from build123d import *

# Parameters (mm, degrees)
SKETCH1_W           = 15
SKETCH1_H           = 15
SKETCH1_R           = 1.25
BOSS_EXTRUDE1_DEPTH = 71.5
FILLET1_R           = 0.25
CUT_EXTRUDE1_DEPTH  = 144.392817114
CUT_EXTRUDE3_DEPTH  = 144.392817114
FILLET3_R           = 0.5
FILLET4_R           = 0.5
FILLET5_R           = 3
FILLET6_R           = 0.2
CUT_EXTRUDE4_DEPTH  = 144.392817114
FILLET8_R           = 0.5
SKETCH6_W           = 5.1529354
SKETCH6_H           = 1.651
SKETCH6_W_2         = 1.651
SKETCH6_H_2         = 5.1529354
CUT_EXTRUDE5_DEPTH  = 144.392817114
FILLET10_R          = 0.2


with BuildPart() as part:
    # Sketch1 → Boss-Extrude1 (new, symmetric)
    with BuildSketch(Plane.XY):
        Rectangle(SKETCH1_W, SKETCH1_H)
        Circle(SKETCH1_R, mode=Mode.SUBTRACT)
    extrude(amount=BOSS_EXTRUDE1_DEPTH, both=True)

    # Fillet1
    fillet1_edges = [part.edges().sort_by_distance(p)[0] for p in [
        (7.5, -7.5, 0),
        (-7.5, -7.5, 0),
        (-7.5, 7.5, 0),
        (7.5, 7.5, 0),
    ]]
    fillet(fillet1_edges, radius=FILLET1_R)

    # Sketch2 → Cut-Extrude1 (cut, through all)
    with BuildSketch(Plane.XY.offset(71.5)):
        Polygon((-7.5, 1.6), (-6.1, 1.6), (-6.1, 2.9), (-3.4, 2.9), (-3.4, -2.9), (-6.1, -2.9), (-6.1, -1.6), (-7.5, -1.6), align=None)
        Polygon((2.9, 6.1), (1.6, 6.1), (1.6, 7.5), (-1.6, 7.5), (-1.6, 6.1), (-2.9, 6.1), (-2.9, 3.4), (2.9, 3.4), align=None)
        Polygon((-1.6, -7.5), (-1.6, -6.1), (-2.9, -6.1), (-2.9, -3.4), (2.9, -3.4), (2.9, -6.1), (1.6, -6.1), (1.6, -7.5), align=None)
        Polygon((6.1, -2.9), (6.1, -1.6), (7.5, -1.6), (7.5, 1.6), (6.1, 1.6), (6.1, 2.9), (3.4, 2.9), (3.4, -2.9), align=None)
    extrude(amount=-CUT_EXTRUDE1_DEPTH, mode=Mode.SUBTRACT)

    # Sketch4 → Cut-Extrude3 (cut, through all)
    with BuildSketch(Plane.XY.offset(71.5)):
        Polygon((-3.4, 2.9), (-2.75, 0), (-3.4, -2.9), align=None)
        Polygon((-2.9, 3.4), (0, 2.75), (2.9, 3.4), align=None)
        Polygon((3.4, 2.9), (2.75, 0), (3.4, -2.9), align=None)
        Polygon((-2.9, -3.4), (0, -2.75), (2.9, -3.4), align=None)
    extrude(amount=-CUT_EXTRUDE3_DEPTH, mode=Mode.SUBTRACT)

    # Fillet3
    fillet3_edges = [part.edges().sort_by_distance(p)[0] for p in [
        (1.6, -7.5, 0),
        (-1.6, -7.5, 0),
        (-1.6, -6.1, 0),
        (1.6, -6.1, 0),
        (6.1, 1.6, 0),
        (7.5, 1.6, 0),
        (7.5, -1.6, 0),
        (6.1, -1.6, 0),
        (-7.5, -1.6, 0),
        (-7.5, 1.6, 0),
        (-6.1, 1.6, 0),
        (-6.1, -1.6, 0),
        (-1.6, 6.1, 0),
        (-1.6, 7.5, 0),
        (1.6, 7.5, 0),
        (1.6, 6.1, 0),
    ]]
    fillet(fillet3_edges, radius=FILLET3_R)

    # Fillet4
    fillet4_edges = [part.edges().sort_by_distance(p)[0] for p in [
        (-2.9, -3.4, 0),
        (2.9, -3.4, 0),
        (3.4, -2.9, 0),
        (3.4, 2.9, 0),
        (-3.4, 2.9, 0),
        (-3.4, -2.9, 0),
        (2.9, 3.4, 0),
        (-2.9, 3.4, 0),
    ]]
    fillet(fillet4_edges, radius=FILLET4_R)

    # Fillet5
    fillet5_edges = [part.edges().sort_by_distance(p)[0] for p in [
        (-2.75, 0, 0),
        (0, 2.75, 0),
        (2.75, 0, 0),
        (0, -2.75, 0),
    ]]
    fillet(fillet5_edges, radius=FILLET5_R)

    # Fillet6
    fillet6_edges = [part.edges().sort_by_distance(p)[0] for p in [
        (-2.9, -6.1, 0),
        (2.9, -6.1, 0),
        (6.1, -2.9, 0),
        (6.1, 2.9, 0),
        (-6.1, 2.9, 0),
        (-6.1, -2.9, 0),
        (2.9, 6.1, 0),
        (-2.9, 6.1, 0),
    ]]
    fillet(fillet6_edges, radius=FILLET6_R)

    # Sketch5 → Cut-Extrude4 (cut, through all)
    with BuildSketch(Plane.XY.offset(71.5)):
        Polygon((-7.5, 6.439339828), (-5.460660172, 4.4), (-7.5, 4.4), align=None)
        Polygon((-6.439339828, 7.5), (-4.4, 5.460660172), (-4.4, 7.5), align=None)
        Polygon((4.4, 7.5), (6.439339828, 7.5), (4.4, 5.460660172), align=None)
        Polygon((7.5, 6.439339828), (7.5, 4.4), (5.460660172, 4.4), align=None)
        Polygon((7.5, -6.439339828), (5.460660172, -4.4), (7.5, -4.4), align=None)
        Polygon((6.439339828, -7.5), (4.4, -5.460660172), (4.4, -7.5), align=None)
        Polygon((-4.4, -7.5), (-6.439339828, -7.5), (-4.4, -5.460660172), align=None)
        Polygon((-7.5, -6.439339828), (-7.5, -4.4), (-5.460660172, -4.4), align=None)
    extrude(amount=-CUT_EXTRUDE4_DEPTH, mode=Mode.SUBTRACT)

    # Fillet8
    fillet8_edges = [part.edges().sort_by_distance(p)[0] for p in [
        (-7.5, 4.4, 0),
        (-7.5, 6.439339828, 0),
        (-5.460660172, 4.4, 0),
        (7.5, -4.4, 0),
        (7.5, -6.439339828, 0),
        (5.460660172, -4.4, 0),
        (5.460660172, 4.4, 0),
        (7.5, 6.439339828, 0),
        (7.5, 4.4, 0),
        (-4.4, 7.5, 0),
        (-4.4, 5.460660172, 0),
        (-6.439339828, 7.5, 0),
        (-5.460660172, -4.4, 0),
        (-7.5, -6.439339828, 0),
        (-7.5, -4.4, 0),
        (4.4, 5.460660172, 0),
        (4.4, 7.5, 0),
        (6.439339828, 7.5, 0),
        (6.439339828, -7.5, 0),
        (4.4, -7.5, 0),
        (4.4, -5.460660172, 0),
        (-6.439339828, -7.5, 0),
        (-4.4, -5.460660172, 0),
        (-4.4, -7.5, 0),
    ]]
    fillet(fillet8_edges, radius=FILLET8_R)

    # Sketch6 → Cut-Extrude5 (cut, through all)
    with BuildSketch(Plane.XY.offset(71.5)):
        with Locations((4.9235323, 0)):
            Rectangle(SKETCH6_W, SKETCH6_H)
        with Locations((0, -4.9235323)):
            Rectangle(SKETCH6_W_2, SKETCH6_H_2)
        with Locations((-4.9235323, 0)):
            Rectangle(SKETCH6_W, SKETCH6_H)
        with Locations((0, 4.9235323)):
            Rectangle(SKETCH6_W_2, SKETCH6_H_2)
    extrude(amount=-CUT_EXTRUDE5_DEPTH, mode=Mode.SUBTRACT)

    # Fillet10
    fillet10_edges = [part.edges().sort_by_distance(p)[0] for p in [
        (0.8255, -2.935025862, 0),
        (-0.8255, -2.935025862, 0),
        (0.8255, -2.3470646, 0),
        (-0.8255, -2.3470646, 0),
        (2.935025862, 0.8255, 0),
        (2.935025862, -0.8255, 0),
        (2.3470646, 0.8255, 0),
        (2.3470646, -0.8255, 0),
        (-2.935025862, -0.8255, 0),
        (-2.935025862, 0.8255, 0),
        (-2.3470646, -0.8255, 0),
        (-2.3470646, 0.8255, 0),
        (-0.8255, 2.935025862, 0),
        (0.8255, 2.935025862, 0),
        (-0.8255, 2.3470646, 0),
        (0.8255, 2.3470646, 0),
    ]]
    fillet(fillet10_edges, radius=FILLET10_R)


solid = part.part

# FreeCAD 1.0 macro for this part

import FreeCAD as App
import Part
import Sketcher
from FreeCAD import Vector


def edges_at(feature, points):
    """Names of the edges that pass closest to the given points."""
    edges = feature.Shape.Edges
    near = lambda p: min(range(len(edges)), key=lambda i: edges[i].distToShape(Part.Vertex(*p))[0])
    return sorted({f"Edge{near(p) + 1}" for p in points})

doc = App.newDocument("Part")
body = doc.addObject("PartDesign::Body", "Body")

# Sketch on XY plane
sketch1 = doc.addObject("Sketcher::SketchObject", "Sketch")
body.addObject(sketch1)
sketch1.AttachmentSupport = (doc.XY_Plane, [""])
sketch1.MapMode = "FlatFace"
sketch1.addGeometry(Part.LineSegment(Vector(-7.5, 7.5, 0), Vector(-7.5, -7.5, 0)), False)
sketch1.addGeometry(Part.LineSegment(Vector(-7.5, -7.5, 0), Vector(7.5, -7.5, 0)), False)
sketch1.addGeometry(Part.LineSegment(Vector(7.5, -7.5, 0), Vector(7.5, 7.5, 0)), False)
sketch1.addGeometry(Part.LineSegment(Vector(7.5, 7.5, 0), Vector(-7.5, 7.5, 0)), False)
sketch1.addGeometry(Part.Circle(Vector(0, 0, 0), Vector(0, 0, 1), 1.2), False)
sketch1.addConstraint(Sketcher.Constraint("Coincident", 0, 2, 1, 1))
sketch1.addConstraint(Sketcher.Constraint("Coincident", 1, 2, 2, 1))
sketch1.addConstraint(Sketcher.Constraint("Coincident", 2, 2, 3, 1))
sketch1.addConstraint(Sketcher.Constraint("Coincident", 3, 2, 0, 1))
sketch1.addConstraint(Sketcher.Constraint("Vertical", 0))
sketch1.addConstraint(Sketcher.Constraint("Horizontal", 1))
sketch1.addConstraint(Sketcher.Constraint("Vertical", 2))
sketch1.addConstraint(Sketcher.Constraint("Horizontal", 3))
sketch1.addConstraint(Sketcher.Constraint("Coincident", 4, 3, -1, 1))
sketch1.addConstraint(Sketcher.Constraint("Symmetric", 0, 2, 2, 2, -1, 1))
sketch1.addConstraint(Sketcher.Constraint("Equal", 3, 0))
sketch1.addConstraint(Sketcher.Constraint("Diameter", 4, 2.5))
sketch1.addConstraint(Sketcher.Constraint("DistanceX", 1, 1, 1, 2, 15.0))
pad1 = doc.addObject("PartDesign::Pad", "Pad")
body.addObject(pad1)
pad1.Profile = sketch1
pad1.Length = 143
pad1.Midplane = True
doc.recompute()

fillet = doc.addObject("PartDesign::Fillet", "Fillet")
body.addObject(fillet)
fillet.Base = (pad1, edges_at(pad1, [
    (7.5, -7.5, 0),
    (-7.5, -7.5, 0),
    (-7.5, 7.5, 0),
    (7.5, 7.5, 0),
]))
fillet.Radius = 0.25

# Sketch on XY plane
sketch2 = doc.addObject("Sketcher::SketchObject", "Sketch001")
body.addObject(sketch2)
sketch2.AttachmentSupport = (doc.XY_Plane, [""])
sketch2.MapMode = "FlatFace"
sketch2.AttachmentOffset = App.Placement(Vector(0, 0, 71.5), App.Rotation())
sketch2.addGeometry(Part.LineSegment(Vector(-6.1, 1.6, 0), Vector(-7.5, 1.6, 0)), False)
sketch2.addGeometry(Part.LineSegment(Vector(-7.5, 1.6, 0), Vector(-7.5, -1.6, 0)), False)
sketch2.addGeometry(Part.LineSegment(Vector(-7.5, -1.6, 0), Vector(-6.1, -1.6, 0)), False)
sketch2.addGeometry(Part.LineSegment(Vector(-6.1, -1.6, 0), Vector(-6.1, -2.9, 0)), False)
sketch2.addGeometry(Part.LineSegment(Vector(-6.1, -2.9, 0), Vector(-3.4, -2.9, 0)), False)
sketch2.addGeometry(Part.LineSegment(Vector(-3.4, -2.9, 0), Vector(-3.4, 2.9, 0)), False)
sketch2.addGeometry(Part.LineSegment(Vector(-3.4, 2.9, 0), Vector(-6.1, 2.9, 0)), False)
sketch2.addGeometry(Part.LineSegment(Vector(-6.1, 2.9, 0), Vector(-6.1, 1.6, 0)), False)
sketch2.addGeometry(Part.LineSegment(Vector(2.9, 6.1, 0), Vector(1.6, 6.1, 0)), False)
sketch2.addGeometry(Part.LineSegment(Vector(1.6, 6.1, 0), Vector(1.6, 7.5, 0)), False)
sketch2.addGeometry(Part.LineSegment(Vector(1.6, 7.5, 0), Vector(-1.6, 7.5, 0)), False)
sketch2.addGeometry(Part.LineSegment(Vector(-1.6, 7.5, 0), Vector(-1.6, 6.1, 0)), False)
sketch2.addGeometry(Part.LineSegment(Vector(-1.6, 6.1, 0), Vector(-2.9, 6.1, 0)), False)
sketch2.addGeometry(Part.LineSegment(Vector(-2.9, 6.1, 0), Vector(-2.9, 3.4, 0)), False)
sketch2.addGeometry(Part.LineSegment(Vector(-2.9, 3.4, 0), Vector(2.9, 3.4, 0)), False)
sketch2.addGeometry(Part.LineSegment(Vector(2.9, 3.4, 0), Vector(2.9, 6.1, 0)), False)
sketch2.addGeometry(Part.LineSegment(Vector(-1.6, -6.1, 0), Vector(-1.6, -7.5, 0)), False)
sketch2.addGeometry(Part.LineSegment(Vector(-1.6, -7.5, 0), Vector(1.6, -7.5, 0)), False)
sketch2.addGeometry(Part.LineSegment(Vector(1.6, -7.5, 0), Vector(1.6, -6.1, 0)), False)
sketch2.addGeometry(Part.LineSegment(Vector(1.6, -6.1, 0), Vector(2.9, -6.1, 0)), False)
sketch2.addGeometry(Part.LineSegment(Vector(2.9, -6.1, 0), Vector(2.9, -3.4, 0)), False)
sketch2.addGeometry(Part.LineSegment(Vector(2.9, -3.4, 0), Vector(-2.9, -3.4, 0)), False)
sketch2.addGeometry(Part.LineSegment(Vector(-2.9, -3.4, 0), Vector(-2.9, -6.1, 0)), False)
sketch2.addGeometry(Part.LineSegment(Vector(-2.9, -6.1, 0), Vector(-1.6, -6.1, 0)), False)
sketch2.addGeometry(Part.LineSegment(Vector(6.1, -2.9, 0), Vector(6.1, -1.6, 0)), False)
sketch2.addGeometry(Part.LineSegment(Vector(6.1, -1.6, 0), Vector(7.5, -1.6, 0)), False)
sketch2.addGeometry(Part.LineSegment(Vector(7.5, -1.6, 0), Vector(7.5, 1.6, 0)), False)
sketch2.addGeometry(Part.LineSegment(Vector(7.5, 1.6, 0), Vector(6.1, 1.6, 0)), False)
sketch2.addGeometry(Part.LineSegment(Vector(6.1, 1.6, 0), Vector(6.1, 2.9, 0)), False)
sketch2.addGeometry(Part.LineSegment(Vector(6.1, 2.9, 0), Vector(3.4, 2.9, 0)), False)
sketch2.addGeometry(Part.LineSegment(Vector(3.4, 2.9, 0), Vector(3.4, -2.9, 0)), False)
sketch2.addGeometry(Part.LineSegment(Vector(3.4, -2.9, 0), Vector(6.1, -2.9, 0)), False)
sketch2.addConstraint(Sketcher.Constraint("Coincident", 0, 2, 1, 1))
sketch2.addConstraint(Sketcher.Constraint("Coincident", 1, 2, 2, 1))
sketch2.addConstraint(Sketcher.Constraint("Coincident", 2, 2, 3, 1))
sketch2.addConstraint(Sketcher.Constraint("Coincident", 3, 2, 4, 1))
sketch2.addConstraint(Sketcher.Constraint("Coincident", 4, 2, 5, 1))
sketch2.addConstraint(Sketcher.Constraint("Coincident", 5, 2, 6, 1))
sketch2.addConstraint(Sketcher.Constraint("Coincident", 6, 2, 7, 1))
sketch2.addConstraint(Sketcher.Constraint("Coincident", 7, 2, 0, 1))
sketch2.addConstraint(Sketcher.Constraint("Coincident", 8, 2, 9, 1))
sketch2.addConstraint(Sketcher.Constraint("Coincident", 9, 2, 10, 1))
sketch2.addConstraint(Sketcher.Constraint("Coincident", 10, 2, 11, 1))
sketch2.addConstraint(Sketcher.Constraint("Coincident", 11, 2, 12, 1))
sketch2.addConstraint(Sketcher.Constraint("Coincident", 12, 2, 13, 1))
sketch2.addConstraint(Sketcher.Constraint("Coincident", 13, 2, 14, 1))
sketch2.addConstraint(Sketcher.Constraint("Coincident", 14, 2, 15, 1))
sketch2.addConstraint(Sketcher.Constraint("Coincident", 15, 2, 8, 1))
sketch2.addConstraint(Sketcher.Constraint("Coincident", 16, 2, 17, 1))
sketch2.addConstraint(Sketcher.Constraint("Coincident", 17, 2, 18, 1))
sketch2.addConstraint(Sketcher.Constraint("Coincident", 18, 2, 19, 1))
sketch2.addConstraint(Sketcher.Constraint("Coincident", 19, 2, 20, 1))
sketch2.addConstraint(Sketcher.Constraint("Coincident", 20, 2, 21, 1))
sketch2.addConstraint(Sketcher.Constraint("Coincident", 21, 2, 22, 1))
sketch2.addConstraint(Sketcher.Constraint("Coincident", 22, 2, 23, 1))
sketch2.addConstraint(Sketcher.Constraint("Coincident", 23, 2, 16, 1))
sketch2.addConstraint(Sketcher.Constraint("Coincident", 24, 2, 25, 1))
sketch2.addConstraint(Sketcher.Constraint("Coincident", 25, 2, 26, 1))
sketch2.addConstraint(Sketcher.Constraint("Coincident", 26, 2, 27, 1))
sketch2.addConstraint(Sketcher.Constraint("Coincident", 27, 2, 28, 1))
sketch2.addConstraint(Sketcher.Constraint("Coincident", 28, 2, 29, 1))
sketch2.addConstraint(Sketcher.Constraint("Coincident", 29, 2, 30, 1))
sketch2.addConstraint(Sketcher.Constraint("Coincident", 30, 2, 31, 1))
sketch2.addConstraint(Sketcher.Constraint("Coincident", 31, 2, 24, 1))
sketch2.addConstraint(Sketcher.Constraint("Horizontal", 0))
sketch2.addConstraint(Sketcher.Constraint("Vertical", 1))
sketch2.addConstraint(Sketcher.Constraint("Horizontal", 2))
sketch2.addConstraint(Sketcher.Constraint("Vertical", 3))
sketch2.addConstraint(Sketcher.Constraint("Horizontal", 4))
sketch2.addConstraint(Sketcher.Constraint("Vertical", 5))
sketch2.addConstraint(Sketcher.Constraint("Horizontal", 6))
sketch2.addConstraint(Sketcher.Constraint("Vertical", 7))
sketch2.addConstraint(Sketcher.Constraint("Horizontal", 8))
sketch2.addConstraint(Sketcher.Constraint("Vertical", 9))
sketch2.addConstraint(Sketcher.Constraint("Horizontal", 10))
sketch2.addConstraint(Sketcher.Constraint("Vertical", 11))
sketch2.addConstraint(Sketcher.Constraint("Horizontal", 12))
sketch2.addConstraint(Sketcher.Constraint("Vertical", 13))
sketch2.addConstraint(Sketcher.Constraint("Horizontal", 14))
sketch2.addConstraint(Sketcher.Constraint("Vertical", 15))
sketch2.addConstraint(Sketcher.Constraint("Vertical", 16))
sketch2.addConstraint(Sketcher.Constraint("Horizontal", 17))
sketch2.addConstraint(Sketcher.Constraint("Vertical", 18))
sketch2.addConstraint(Sketcher.Constraint("Horizontal", 19))
sketch2.addConstraint(Sketcher.Constraint("Vertical", 20))
sketch2.addConstraint(Sketcher.Constraint("Horizontal", 21))
sketch2.addConstraint(Sketcher.Constraint("Vertical", 22))
sketch2.addConstraint(Sketcher.Constraint("Horizontal", 23))
sketch2.addConstraint(Sketcher.Constraint("Vertical", 24))
sketch2.addConstraint(Sketcher.Constraint("Horizontal", 25))
sketch2.addConstraint(Sketcher.Constraint("Vertical", 26))
sketch2.addConstraint(Sketcher.Constraint("Horizontal", 27))
sketch2.addConstraint(Sketcher.Constraint("Vertical", 28))
sketch2.addConstraint(Sketcher.Constraint("Horizontal", 29))
sketch2.addConstraint(Sketcher.Constraint("Vertical", 30))
sketch2.addConstraint(Sketcher.Constraint("Horizontal", 31))
sketch2.addConstraint(Sketcher.Constraint("Symmetric", 9, 2, 16, 2, -1, 1))
sketch2.addConstraint(Sketcher.Constraint("Symmetric", 11, 2, 18, 2, -1, 1))
sketch2.addConstraint(Sketcher.Constraint("Symmetric", 13, 2, 20, 2, -1, 1))
sketch2.addConstraint(Sketcher.Constraint("Symmetric", 15, 2, 22, 2, -1, 1))
sketch2.addConstraint(Sketcher.Constraint("Symmetric", 7, 2, 24, 2, -1, 1))
sketch2.addConstraint(Sketcher.Constraint("Symmetric", 1, 2, 26, 2, -1, 1))
sketch2.addConstraint(Sketcher.Constraint("Symmetric", 3, 2, 28, 2, -1, 1))
sketch2.addConstraint(Sketcher.Constraint("Symmetric", 5, 2, 30, 2, -1, 1))
sketch2.addConstraint(Sketcher.Constraint("Symmetric", 8, 2, 11, 2, -2))
sketch2.addConstraint(Sketcher.Constraint("Symmetric", 2, 2, 24, 2, -2))
sketch2.addConstraint(Sketcher.Constraint("Horizontal", 6, 2, 28, 2))
sketch2.addConstraint(Sketcher.Constraint("Vertical", 15, 2, 19, 2))
sketch2.addConstraint(Sketcher.Constraint("Equal", 17, 1))
sketch2.addConstraint(Sketcher.Constraint("Equal", 23, 3))
sketch2.addConstraint(Sketcher.Constraint("Equal", 27, 9))
sketch2.addConstraint(Sketcher.Constraint("Equal", 31, 13))
sketch2.addConstraint(Sketcher.Constraint("DistanceX", 0, 2, 0, 1, 1.4))
sketch2.addConstraint(Sketcher.Constraint("DistanceX", 4, 1, 4, 2, 2.7))
sketch2.addConstraint(Sketcher.Constraint("DistanceX", 8, 2, 8, 1, 1.3))
sketch2.addConstraint(Sketcher.Constraint("DistanceX", 10, 2, 10, 1, 3.2))
sketch2.addConstraint(Sketcher.Constraint("DistanceX", 5, 2, 8, 2, 5.0))
sketch2.addConstraint(Sketcher.Constraint("DistanceY", 4, 2, 8, 2, 9.0))
pocket1 = doc.addObject("PartDesign::Pocket", "Pocket")
body.addObject(pocket1)
pocket1.Profile = sketch2
pocket1.Type = "ThroughAll"

# Sketch on XY plane
sketch3 = doc.addObject("Sketcher::SketchObject", "Sketch002")
body.addObject(sketch3)
sketch3.AttachmentSupport = (doc.XY_Plane, [""])
sketch3.MapMode = "FlatFace"
sketch3.AttachmentOffset = App.Placement(Vector(0, 0, 71.5), App.Rotation())
sketch3.addGeometry(Part.LineSegment(Vector(-2.8, 0, 0), Vector(-3.4, 2.9, 0)), False)
sketch3.addGeometry(Part.LineSegment(Vector(-3.4, 2.9, 0), Vector(-3.4, -2.9, 0)), False)
sketch3.addGeometry(Part.LineSegment(Vector(-3.4, -2.9, 0), Vector(-2.8, 0, 0)), False)
sketch3.addGeometry(Part.LineSegment(Vector(-2.9, 3.4, 0), Vector(0, 2.8, 0)), False)
sketch3.addGeometry(Part.LineSegment(Vector(0, 2.8, 0), Vector(2.9, 3.4, 0)), False)
sketch3.addGeometry(Part.LineSegment(Vector(2.9, 3.4, 0), Vector(-2.9, 3.4, 0)), False)
sketch3.addGeometry(Part.LineSegment(Vector(3.4, 2.9, 0), Vector(2.8, 0, 0)), False)
sketch3.addGeometry(Part.LineSegment(Vector(2.8, 0, 0), Vector(3.4, -2.9, 0)), False)
sketch3.addGeometry(Part.LineSegment(Vector(3.4, -2.9, 0), Vector(3.4, 2.9, 0)), False)
sketch3.addGeometry(Part.LineSegment(Vector(0, -2.8, 0), Vector(-2.9, -3.4, 0)), False)
sketch3.addGeometry(Part.LineSegment(Vector(-2.9, -3.4, 0), Vector(2.9, -3.4, 0)), False)
sketch3.addGeometry(Part.LineSegment(Vector(2.9, -3.4, 0), Vector(0, -2.8, 0)), False)
sketch3.addConstraint(Sketcher.Constraint("Coincident", 0, 2, 1, 1))
sketch3.addConstraint(Sketcher.Constraint("Coincident", 1, 2, 2, 1))
sketch3.addConstraint(Sketcher.Constraint("Coincident", 2, 2, 0, 1))
sketch3.addConstraint(Sketcher.Constraint("Coincident", 3, 2, 4, 1))
sketch3.addConstraint(Sketcher.Constraint("Coincident", 4, 2, 5, 1))
sketch3.addConstraint(Sketcher.Constraint("Coincident", 5, 2, 3, 1))
sketch3.addConstraint(Sketcher.Constraint("Coincident", 6, 2, 7, 1))
sketch3.addConstraint(Sketcher.Constraint("Coincident", 7, 2, 8, 1))
sketch3.addConstraint(Sketcher.Constraint("Coincident", 8, 2, 6, 1))
sketch3.addConstraint(Sketcher.Constraint("Coincident", 9, 2, 10, 1))
sketch3.addConstraint(Sketcher.Constraint("Coincident", 10, 2, 11, 1))
sketch3.addConstraint(Sketcher.Constraint("Coincident", 11, 2, 9, 1))
sketch3.addConstraint(Sketcher.Constraint("Vertical", 1))
sketch3.addConstraint(Sketcher.Constraint("Horizontal", 5))
sketch3.addConstraint(Sketcher.Constraint("Vertical", 8))
sketch3.addConstraint(Sketcher.Constraint("Horizontal", 10))
sketch3.addConstraint(Sketcher.Constraint("Symmetric", 2, 2, 6, 2, -1, 1))
sketch3.addConstraint(Sketcher.Constraint("Symmetric", 0, 2, 7, 2, -1, 1))
sketch3.addConstraint(Sketcher.Constraint("Symmetric", 4, 2, 9, 2, -1, 1))
sketch3.addConstraint(Sketcher.Constraint("Symmetric", 3, 2, 11, 2, -1, 1))
sketch3.addConstraint(Sketcher.Constraint("PointOnObject", 2, 2, -1))
sketch3.addConstraint(Sketcher.Constraint("PointOnObject", 3, 2, -2))
sketch3.addConstraint(Sketcher.Constraint("Perpendicular", 2, 3))
sketch3.addConstraint(Sketcher.Constraint("Perpendicular", 0, 4))
sketch3.addConstraint(Sketcher.Constraint("Perpendicular", 3, 6))
sketch3.addConstraint(Sketcher.Constraint("Perpendicular", 6, 11))
sketch3.addConstraint(Sketcher.Constraint("Horizontal", 1, 2, 7, 2))
sketch3.addConstraint(Sketcher.Constraint("Equal", 10, 1))
sketch3.addConstraint(Sketcher.Constraint("DistanceX", 5, 2, 5, 1, 5.8))
sketch3.addConstraint(Sketcher.Constraint("DistanceX", 0, 2, -1, 1, 3.4))
sketch3.addConstraint(Sketcher.Constraint("DistanceY", -1, 1, 4, 2, 3.4))
sketch3.addConstraint(Sketcher.Constraint("DistanceX", 2, 2, 6, 2, 5.5))
pocket2 = doc.addObject("PartDesign::Pocket", "Pocket001")
body.addObject(pocket2)
pocket2.Profile = sketch3
pocket2.Type = "ThroughAll"
doc.recompute()

fillet2 = doc.addObject("PartDesign::Fillet", "Fillet001")
body.addObject(fillet2)
fillet2.Base = (pocket2, edges_at(pocket2, [
    (1.6, -7.5, 0),
    (-1.6, -7.5, 0),
    (-1.6, -6.1, 0),
    (1.6, -6.1, 0),
    (6.1, 1.6, 0),
    (7.5, 1.6, 0),
    (7.5, -1.6, 0),
    (6.1, -1.6, 0),
    (-7.5, -1.6, 0),
    (-7.5, 1.6, 0),
    (-6.1, 1.6, 0),
    (-6.1, -1.6, 0),
    (-1.6, 6.1, 0),
    (-1.6, 7.5, 0),
    (1.6, 7.5, 0),
    (1.6, 6.1, 0),
]))
fillet2.Radius = 0.5
doc.recompute()

fillet3 = doc.addObject("PartDesign::Fillet", "Fillet002")
body.addObject(fillet3)
fillet3.Base = (fillet2, edges_at(fillet2, [
    (-2.9, -3.4, 0),
    (2.9, -3.4, 0),
    (3.4, -2.9, 0),
    (3.4, 2.9, 0),
    (-3.4, 2.9, 0),
    (-3.4, -2.9, 0),
    (2.9, 3.4, 0),
    (-2.9, 3.4, 0),
]))
fillet3.Radius = 0.5
doc.recompute()

fillet4 = doc.addObject("PartDesign::Fillet", "Fillet003")
body.addObject(fillet4)
fillet4.Base = (fillet3, edges_at(fillet3, [
    (-2.75, 0, 0),
    (0, 2.75, 0),
    (2.75, 0, 0),
    (0, -2.75, 0),
]))
fillet4.Radius = 3
doc.recompute()

fillet5 = doc.addObject("PartDesign::Fillet", "Fillet004")
body.addObject(fillet5)
fillet5.Base = (fillet4, edges_at(fillet4, [
    (-2.9, -6.1, 0),
    (2.9, -6.1, 0),
    (6.1, -2.9, 0),
    (6.1, 2.9, 0),
    (-6.1, 2.9, 0),
    (-6.1, -2.9, 0),
    (2.9, 6.1, 0),
    (-2.9, 6.1, 0),
]))
fillet5.Radius = 0.2

# Sketch on XY plane
sketch4 = doc.addObject("Sketcher::SketchObject", "Sketch003")
body.addObject(sketch4)
sketch4.AttachmentSupport = (doc.XY_Plane, [""])
sketch4.MapMode = "FlatFace"
sketch4.AttachmentOffset = App.Placement(Vector(0, 0, 71.5), App.Rotation())
sketch4.addGeometry(Part.LineSegment(Vector(-5.5, 4.4, 0), Vector(-7.5, 6.4, 0)), False)
sketch4.addGeometry(Part.LineSegment(Vector(-7.5, 6.4, 0), Vector(-7.5, 4.4, 0)), False)
sketch4.addGeometry(Part.LineSegment(Vector(-7.5, 4.4, 0), Vector(-5.5, 4.4, 0)), False)
sketch4.addGeometry(Part.LineSegment(Vector(-6.4, 7.5, 0), Vector(-4.4, 5.5, 0)), False)
sketch4.addGeometry(Part.LineSegment(Vector(-4.4, 5.5, 0), Vector(-4.4, 7.5, 0)), False)
sketch4.addGeometry(Part.LineSegment(Vector(-4.4, 7.5, 0), Vector(-6.4, 7.5, 0)), False)
sketch4.addGeometry(Part.LineSegment(Vector(6.4, 7.5, 0), Vector(4.4, 7.5, 0)), False)
sketch4.addGeometry(Part.LineSegment(Vector(4.4, 7.5, 0), Vector(4.4, 5.5, 0)), False)
sketch4.addGeometry(Part.LineSegment(Vector(4.4, 5.5, 0), Vector(6.4, 7.5, 0)), False)
sketch4.addGeometry(Part.LineSegment(Vector(7.5, 4.4, 0), Vector(7.5, 6.4, 0)), False)
sketch4.addGeometry(Part.LineSegment(Vector(7.5, 6.4, 0), Vector(5.5, 4.4, 0)), False)
sketch4.addGeometry(Part.LineSegment(Vector(5.5, 4.4, 0), Vector(7.5, 4.4, 0)), False)
sketch4.addGeometry(Part.LineSegment(Vector(5.5, -4.4, 0), Vector(7.5, -6.4, 0)), False)
sketch4.addGeometry(Part.LineSegment(Vector(7.5, -6.4, 0), Vector(7.5, -4.4, 0)), False)
sketch4.addGeometry(Part.LineSegment(Vector(7.5, -4.4, 0), Vector(5.5, -4.4, 0)), False)
sketch4.addGeometry(Part.LineSegment(Vector(6.4, -7.5, 0), Vector(4.4, -5.5, 0)), False)
sketch4.addGeometry(Part.LineSegment(Vector(4.4, -5.5, 0), Vector(4.4, -7.5, 0)), False)
sketch4.addGeometry(Part.LineSegment(Vector(4.4, -7.5, 0), Vector(6.4, -7.5, 0)), False)
sketch4.addGeometry(Part.LineSegment(Vector(-6.4, -7.5, 0), Vector(-4.4, -7.5, 0)), False)
sketch4.addGeometry(Part.LineSegment(Vector(-4.4, -7.5, 0), Vector(-4.4, -5.5, 0)), False)
sketch4.addGeometry(Part.LineSegment(Vector(-4.4, -5.5, 0), Vector(-6.4, -7.5, 0)), False)
sketch4.addGeometry(Part.LineSegment(Vector(-7.5, -4.4, 0), Vector(-7.5, -6.4, 0)), False)
sketch4.addGeometry(Part.LineSegment(Vector(-7.5, -6.4, 0), Vector(-5.5, -4.4, 0)), False)
sketch4.addGeometry(Part.LineSegment(Vector(-5.5, -4.4, 0), Vector(-7.5, -4.4, 0)), False)
sketch4.addConstraint(Sketcher.Constraint("Coincident", 0, 2, 1, 1))
sketch4.addConstraint(Sketcher.Constraint("Coincident", 1, 2, 2, 1))
sketch4.addConstraint(Sketcher.Constraint("Coincident", 2, 2, 0, 1))
sketch4.addConstraint(Sketcher.Constraint("Coincident", 3, 2, 4, 1))
sketch4.addConstraint(Sketcher.Constraint("Coincident", 4, 2, 5, 1))
sketch4.addConstraint(Sketcher.Constraint("Coincident", 5, 2, 3, 1))
sketch4.addConstraint(Sketcher.Constraint("Coincident", 6, 2, 7, 1))
sketch4.addConstraint(Sketcher.Constraint("Coincident", 7, 2, 8, 1))
sketch4.addConstraint(Sketcher.Constraint("Coincident", 8, 2, 6, 1))
sketch4.addConstraint(Sketcher.Constraint("Coincident", 9, 2, 10, 1))
sketch4.addConstraint(Sketcher.Constraint("Coincident", 10, 2, 11, 1))
sketch4.addConstraint(Sketcher.Constraint("Coincident", 11, 2, 9, 1))
sketch4.addConstraint(Sketcher.Constraint("Coincident", 12, 2, 13, 1))
sketch4.addConstraint(Sketcher.Constraint("Coincident", 13, 2, 14, 1))
sketch4.addConstraint(Sketcher.Constraint("Coincident", 14, 2, 12, 1))
sketch4.addConstraint(Sketcher.Constraint("Coincident", 15, 2, 16, 1))
sketch4.addConstraint(Sketcher.Constraint("Coincident", 16, 2, 17, 1))
sketch4.addConstraint(Sketcher.Constraint("Coincident", 17, 2, 15, 1))
sketch4.addConstraint(Sketcher.Constraint("Coincident", 18, 2, 19, 1))
sketch4.addConstraint(Sketcher.Constraint("Coincident", 19, 2, 20, 1))
sketch4.addConstraint(Sketcher.Constraint("Coincident", 20, 2, 18, 1))
sketch4.addConstraint(Sketcher.Constraint("Coincident", 21, 2, 22, 1))
sketch4.addConstraint(Sketcher.Constraint("Coincident", 22, 2, 23, 1))
sketch4.addConstraint(Sketcher.Constraint("Coincident", 23, 2, 21, 1))
sketch4.addConstraint(Sketcher.Constraint("Vertical", 1))
sketch4.addConstraint(Sketcher.Constraint("Horizontal", 2))
sketch4.addConstraint(Sketcher.Constraint("Vertical", 4))
sketch4.addConstraint(Sketcher.Constraint("Horizontal", 5))
sketch4.addConstraint(Sketcher.Constraint("Horizontal", 6))
sketch4.addConstraint(Sketcher.Constraint("Vertical", 7))
sketch4.addConstraint(Sketcher.Constraint("Vertical", 9))
sketch4.addConstraint(Sketcher.Constraint("Horizontal", 11))
sketch4.addConstraint(Sketcher.Constraint("Vertical", 13))
sketch4.addConstraint(Sketcher.Constraint("Horizontal", 14))
sketch4.addConstraint(Sketcher.Constraint("Vertical", 16))
sketch4.addConstraint(Sketcher.Constraint("Horizontal", 17))
sketch4.addConstraint(Sketcher.Constraint("Horizontal", 18))
sketch4.addConstraint(Sketcher.Constraint("Vertical", 19))
sketch4.addConstraint(Sketcher.Constraint("Vertical", 21))
sketch4.addConstraint(Sketcher.Constraint("Horizontal", 23))
sketch4.addConstraint(Sketcher.Constraint("Symmetric", 0, 2, 12, 2, -1, 1))
sketch4.addConstraint(Sketcher.Constraint("Symmetric", 2, 2, 14, 2, -1, 1))
sketch4.addConstraint(Sketcher.Constraint("Symmetric", 3, 2, 15, 2, -1, 1))
sketch4.addConstraint(Sketcher.Constraint("Symmetric", 5, 2, 17, 2, -1, 1))
sketch4.addConstraint(Sketcher.Constraint("Symmetric", 6, 2, 18, 2, -1, 1))
sketch4.addConstraint(Sketcher.Constraint("Symmetric", 9, 2, 21, 2, -1, 1))
sketch4.addConstraint(Sketcher.Constraint("Symmetric", 10, 2, 22, 2, -1, 1))
sketch4.addConstraint(Sketcher.Constraint("Symmetric", 4, 2, 6, 2, -2))
sketch4.addConstraint(Sketcher.Constraint("Symmetric", 0, 2, 9, 2, -2))
sketch4.addConstraint(Sketcher.Constraint("Symmetric", 2, 2, 10, 2, -2))
sketch4.addConstraint(Sketcher.Constraint("Parallel", 0, 3))
sketch4.addConstraint(Sketcher.Constraint("Perpendicular", 3, 8))
sketch4.addConstraint(Sketcher.Constraint("Parallel", 8, 10))
sketch4.addConstraint(Sketcher.Constraint("Perpendicular", 15, 20))
sketch4.addConstraint(Sketcher.Constraint("Horizontal", 3, 2, 7, 2))
sketch4.addConstraint(Sketcher.Constraint("Horizontal", 15, 2, 19, 2))
sketch4.addConstraint(Sketcher.Constraint("Equal", 2, 5))
sketch4.addConstraint(Sketcher.Constraint("DistanceX", 0, 2, -1, 1, 7.5))
sketch4.addConstraint(Sketcher.Constraint("DistanceY", -1, 1, 1, 2, 4.4))
sketch4.addConstraint(Sketcher.Constraint("DistanceX", 3, 2, -1, 1, 4.4))
sketch4.addConstraint(Sketcher.Constraint("DistanceY", -1, 1, 4, 2, 7.5))
sketch4.addConstraint(Sketcher.Constraint("DistanceX", 2, 1, 2, 2, 2.03934))
pocket3 = doc.addObject("PartDesign::Pocket", "Pocket002")
body.addObject(pocket3)
pocket3.Profile = sketch4
pocket3.Type = "ThroughAll"
doc.recompute()

fillet6 = doc.addObject("PartDesign::Fillet", "Fillet005")
body.addObject(fillet6)
fillet6.Base = (pocket3, edges_at(pocket3, [
    (-7.5, 4.4, 0),
    (-7.5, 6.439, 0),
    (-5.461, 4.4, 0),
    (7.5, -4.4, 0),
    (7.5, -6.439, 0),
    (5.461, -4.4, 0),
    (5.461, 4.4, 0),
    (7.5, 6.439, 0),
    (7.5, 4.4, 0),
    (-4.4, 7.5, 0),
    (-4.4, 5.461, 0),
    (-6.439, 7.5, 0),
    (-5.461, -4.4, 0),
    (-7.5, -6.439, 0),
    (-7.5, -4.4, 0),
    (4.4, 5.461, 0),
    (4.4, 7.5, 0),
    (6.439, 7.5, 0),
    (6.439, -7.5, 0),
    (4.4, -7.5, 0),
    (4.4, -5.461, 0),
    (-6.439, -7.5, 0),
    (-4.4, -5.461, 0),
    (-4.4, -7.5, 0),
]))
fillet6.Radius = 0.5

# Sketch on XY plane
sketch5 = doc.addObject("Sketcher::SketchObject", "Sketch004")
body.addObject(sketch5)
sketch5.AttachmentSupport = (doc.XY_Plane, [""])
sketch5.MapMode = "FlatFace"
sketch5.AttachmentOffset = App.Placement(Vector(0, 0, 71.5), App.Rotation())
sketch5.addGeometry(Part.LineSegment(Vector(2.3, 0.8, 0), Vector(2.3, -0.8, 0)), False)
sketch5.addGeometry(Part.LineSegment(Vector(2.3, -0.8, 0), Vector(7.5, -0.8, 0)), False)
sketch5.addGeometry(Part.LineSegment(Vector(7.5, -0.8, 0), Vector(7.5, 0.8, 0)), False)
sketch5.addGeometry(Part.LineSegment(Vector(7.5, 0.8, 0), Vector(2.3, 0.8, 0)), False)
sketch5.addGeometry(Part.LineSegment(Vector(-0.8, -2.3, 0), Vector(-0.8, -7.5, 0)), False)
sketch5.addGeometry(Part.LineSegment(Vector(-0.8, -7.5, 0), Vector(0.8, -7.5, 0)), False)
sketch5.addGeometry(Part.LineSegment(Vector(0.8, -7.5, 0), Vector(0.8, -2.3, 0)), False)
sketch5.addGeometry(Part.LineSegment(Vector(0.8, -2.3, 0), Vector(-0.8, -2.3, 0)), False)
sketch5.addGeometry(Part.LineSegment(Vector(-7.5, 0.8, 0), Vector(-7.5, -0.8, 0)), False)
sketch5.addGeometry(Part.LineSegment(Vector(-7.5, -0.8, 0), Vector(-2.3, -0.8, 0)), False)
sketch5.addGeometry(Part.LineSegment(Vector(-2.3, -0.8, 0), Vector(-2.3, 0.8, 0)), False)
sketch5.addGeometry(Part.LineSegment(Vector(-2.3, 0.8, 0), Vector(-7.5, 0.8, 0)), False)
sketch5.addGeometry(Part.LineSegment(Vector(-0.8, 7.5, 0), Vector(-0.8, 2.3, 0)), False)
sketch5.addGeometry(Part.LineSegment(Vector(-0.8, 2.3, 0), Vector(0.8, 2.3, 0)), False)
sketch5.addGeometry(Part.LineSegment(Vector(0.8, 2.3, 0), Vector(0.8, 7.5, 0)), False)
sketch5.addGeometry(Part.LineSegment(Vector(0.8, 7.5, 0), Vector(-0.8, 7.5, 0)), False)
sketch5.addConstraint(Sketcher.Constraint("Coincident", 0, 2, 1, 1))
sketch5.addConstraint(Sketcher.Constraint("Coincident", 1, 2, 2, 1))
sketch5.addConstraint(Sketcher.Constraint("Coincident", 2, 2, 3, 1))
sketch5.addConstraint(Sketcher.Constraint("Coincident", 3, 2, 0, 1))
sketch5.addConstraint(Sketcher.Constraint("Coincident", 4, 2, 5, 1))
sketch5.addConstraint(Sketcher.Constraint("Coincident", 5, 2, 6, 1))
sketch5.addConstraint(Sketcher.Constraint("Coincident", 6, 2, 7, 1))
sketch5.addConstraint(Sketcher.Constraint("Coincident", 7, 2, 4, 1))
sketch5.addConstraint(Sketcher.Constraint("Coincident", 8, 2, 9, 1))
sketch5.addConstraint(Sketcher.Constraint("Coincident", 9, 2, 10, 1))
sketch5.addConstraint(Sketcher.Constraint("Coincident", 10, 2, 11, 1))
sketch5.addConstraint(Sketcher.Constraint("Coincident", 11, 2, 8, 1))
sketch5.addConstraint(Sketcher.Constraint("Coincident", 12, 2, 13, 1))
sketch5.addConstraint(Sketcher.Constraint("Coincident", 13, 2, 14, 1))
sketch5.addConstraint(Sketcher.Constraint("Coincident", 14, 2, 15, 1))
sketch5.addConstraint(Sketcher.Constraint("Coincident", 15, 2, 12, 1))
sketch5.addConstraint(Sketcher.Constraint("Vertical", 0))
sketch5.addConstraint(Sketcher.Constraint("Horizontal", 1))
sketch5.addConstraint(Sketcher.Constraint("Vertical", 2))
sketch5.addConstraint(Sketcher.Constraint("Horizontal", 3))
sketch5.addConstraint(Sketcher.Constraint("Vertical", 4))
sketch5.addConstraint(Sketcher.Constraint("Horizontal", 5))
sketch5.addConstraint(Sketcher.Constraint("Vertical", 6))
sketch5.addConstraint(Sketcher.Constraint("Horizontal", 7))
sketch5.addConstraint(Sketcher.Constraint("Vertical", 8))
sketch5.addConstraint(Sketcher.Constraint("Horizontal", 9))
sketch5.addConstraint(Sketcher.Constraint("Vertical", 10))
sketch5.addConstraint(Sketcher.Constraint("Horizontal", 11))
sketch5.addConstraint(Sketcher.Constraint("Vertical", 12))
sketch5.addConstraint(Sketcher.Constraint("Horizontal", 13))
sketch5.addConstraint(Sketcher.Constraint("Vertical", 14))
sketch5.addConstraint(Sketcher.Constraint("Horizontal", 15))
sketch5.addConstraint(Sketcher.Constraint("Symmetric", 2, 2, 8, 2, -1, 1))
sketch5.addConstraint(Sketcher.Constraint("Symmetric", 0, 2, 10, 2, -1, 1))
sketch5.addConstraint(Sketcher.Constraint("Symmetric", 6, 2, 12, 2, -1, 1))
sketch5.addConstraint(Sketcher.Constraint("Symmetric", 4, 2, 14, 2, -1, 1))
sketch5.addConstraint(Sketcher.Constraint("Horizontal", 1, 2, 8, 2))
sketch5.addConstraint(Sketcher.Constraint("Vertical", 7, 2, 12, 2))
sketch5.addConstraint(Sketcher.Constraint("Equal", 15, 0))
sketch5.addConstraint(Sketcher.Constraint("Equal", 11, 4))
sketch5.addConstraint(Sketcher.Constraint("DistanceX", -1, 1, 1, 2, 7.5))
sketch5.addConstraint(Sketcher.Constraint("DistanceY", 4, 2, -1, 1, 7.5))
sketch5.addConstraint(Sketcher.Constraint("DistanceX", 5, 1, 5, 2, 1.651))
sketch5.addConstraint(Sketcher.Constraint("DistanceX", 1, 1, 1, 2, 5.152935))
pocket4 = doc.addObject("PartDesign::Pocket", "Pocket003")
body.addObject(pocket4)
pocket4.Profile = sketch5
pocket4.Type = "ThroughAll"
doc.recompute()

fillet7 = doc.addObject("PartDesign::Fillet", "Fillet006")
body.addObject(fillet7)
fillet7.Base = (pocket4, edges_at(pocket4, [
    (0.826, -2.935, 0),
    (-0.826, -2.935, 0),
    (0.826, -2.347, 0),
    (-0.826, -2.347, 0),
    (2.935, 0.826, 0),
    (2.935, -0.826, 0),
    (2.347, 0.826, 0),
    (2.347, -0.826, 0),
    (-2.935, -0.826, 0),
    (-2.935, 0.826, 0),
    (-2.347, -0.826, 0),
    (-2.347, 0.826, 0),
    (-0.826, 2.935, 0),
    (0.826, 2.935, 0),
    (-0.826, 2.347, 0),
    (0.826, 2.347, 0),
]))
fillet7.Radius = 0.2

doc.recompute()
